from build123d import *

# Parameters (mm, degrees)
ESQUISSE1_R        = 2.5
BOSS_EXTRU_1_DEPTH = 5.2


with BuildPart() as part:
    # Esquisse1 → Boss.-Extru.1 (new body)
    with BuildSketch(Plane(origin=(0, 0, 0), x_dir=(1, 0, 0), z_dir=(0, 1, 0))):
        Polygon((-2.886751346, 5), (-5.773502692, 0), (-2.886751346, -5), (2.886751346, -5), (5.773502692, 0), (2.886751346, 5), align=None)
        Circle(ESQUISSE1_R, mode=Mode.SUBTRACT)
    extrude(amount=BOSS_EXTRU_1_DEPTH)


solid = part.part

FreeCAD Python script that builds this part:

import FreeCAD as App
import Part
import Sketcher
from FreeCAD import Vector
Q = App.Units.Quantity

doc = App.newDocument("Part")
body = doc.addObject("PartDesign::Body", "Body")

sketch1 = doc.addObject("Sketcher::SketchObject", "Sketch")
body.addObject(sketch1)
sketch1.AttachmentSupport = (doc.XZ_Plane, [""])
sketch1.MapMode = "FlatFace"
sketch1.addGeometry([
    Part.LineSegment(Vector(-2.9, -5, 0), Vector(-5.8, 0, 0)),
    Part.LineSegment(Vector(-5.8, 0, 0), Vector(-2.9, 5, 0)),
    Part.LineSegment(Vector(-2.9, 5, 0), Vector(2.9, 5, 0)),
    Part.LineSegment(Vector(2.9, 5, 0), Vector(5.8, 0, 0)),
    Part.LineSegment(Vector(5.8, 0, 0), Vector(2.9, -5, 0)),
    Part.LineSegment(Vector(2.9, -5, 0), Vector(-2.9, -5, 0)),
    Part.Circle(Vector(0, 0, 0), Vector(0, 0, 1), 2.5),
], False)
sketch1.addConstraint([
    Sketcher.Constraint("Coincident", 0, 2, 1, 1),
    Sketcher.Constraint("Coincident", 1, 2, 2, 1),
    Sketcher.Constraint("Coincident", 2, 2, 3, 1),
    Sketcher.Constraint("Coincident", 3, 2, 4, 1),
    Sketcher.Constraint("Coincident", 4, 2, 5, 1),
    Sketcher.Constraint("Coincident", 5, 2, 0, 1),
    Sketcher.Constraint("Horizontal", 2),
    Sketcher.Constraint("Horizontal", 5),
    Sketcher.Constraint("Coincident", 6, 3, -1, 1),
    Sketcher.Constraint("Symmetric", 0, 2, 3, 2, -1, 1),
    Sketcher.Constraint("Symmetric", 1, 2, 4, 2, -1, 1),
    Sketcher.Constraint("PointOnObject", 0, 2, -1),
    Sketcher.Constraint("Parallel", 0, 3),
    Sketcher.Constraint("Vertical", 2, 2, 4, 2),
    Sketcher.Constraint("Diameter", 6, 5.0),
    Sketcher.Constraint("Angle", 0, Q("120 deg")),
    Sketcher.Constraint("DistanceY", -1, 1, 1, 2, 5.0),
    Sketcher.Constraint("DistanceX", 2, 1, 2, 2, 5.773503),
])
pad1 = doc.addObject("PartDesign::Pad", "Pad")
body.addObject(pad1)
pad1.Profile = sketch1
pad1.Length = 5.2
pad1.Reversed = True

doc.recompute()
